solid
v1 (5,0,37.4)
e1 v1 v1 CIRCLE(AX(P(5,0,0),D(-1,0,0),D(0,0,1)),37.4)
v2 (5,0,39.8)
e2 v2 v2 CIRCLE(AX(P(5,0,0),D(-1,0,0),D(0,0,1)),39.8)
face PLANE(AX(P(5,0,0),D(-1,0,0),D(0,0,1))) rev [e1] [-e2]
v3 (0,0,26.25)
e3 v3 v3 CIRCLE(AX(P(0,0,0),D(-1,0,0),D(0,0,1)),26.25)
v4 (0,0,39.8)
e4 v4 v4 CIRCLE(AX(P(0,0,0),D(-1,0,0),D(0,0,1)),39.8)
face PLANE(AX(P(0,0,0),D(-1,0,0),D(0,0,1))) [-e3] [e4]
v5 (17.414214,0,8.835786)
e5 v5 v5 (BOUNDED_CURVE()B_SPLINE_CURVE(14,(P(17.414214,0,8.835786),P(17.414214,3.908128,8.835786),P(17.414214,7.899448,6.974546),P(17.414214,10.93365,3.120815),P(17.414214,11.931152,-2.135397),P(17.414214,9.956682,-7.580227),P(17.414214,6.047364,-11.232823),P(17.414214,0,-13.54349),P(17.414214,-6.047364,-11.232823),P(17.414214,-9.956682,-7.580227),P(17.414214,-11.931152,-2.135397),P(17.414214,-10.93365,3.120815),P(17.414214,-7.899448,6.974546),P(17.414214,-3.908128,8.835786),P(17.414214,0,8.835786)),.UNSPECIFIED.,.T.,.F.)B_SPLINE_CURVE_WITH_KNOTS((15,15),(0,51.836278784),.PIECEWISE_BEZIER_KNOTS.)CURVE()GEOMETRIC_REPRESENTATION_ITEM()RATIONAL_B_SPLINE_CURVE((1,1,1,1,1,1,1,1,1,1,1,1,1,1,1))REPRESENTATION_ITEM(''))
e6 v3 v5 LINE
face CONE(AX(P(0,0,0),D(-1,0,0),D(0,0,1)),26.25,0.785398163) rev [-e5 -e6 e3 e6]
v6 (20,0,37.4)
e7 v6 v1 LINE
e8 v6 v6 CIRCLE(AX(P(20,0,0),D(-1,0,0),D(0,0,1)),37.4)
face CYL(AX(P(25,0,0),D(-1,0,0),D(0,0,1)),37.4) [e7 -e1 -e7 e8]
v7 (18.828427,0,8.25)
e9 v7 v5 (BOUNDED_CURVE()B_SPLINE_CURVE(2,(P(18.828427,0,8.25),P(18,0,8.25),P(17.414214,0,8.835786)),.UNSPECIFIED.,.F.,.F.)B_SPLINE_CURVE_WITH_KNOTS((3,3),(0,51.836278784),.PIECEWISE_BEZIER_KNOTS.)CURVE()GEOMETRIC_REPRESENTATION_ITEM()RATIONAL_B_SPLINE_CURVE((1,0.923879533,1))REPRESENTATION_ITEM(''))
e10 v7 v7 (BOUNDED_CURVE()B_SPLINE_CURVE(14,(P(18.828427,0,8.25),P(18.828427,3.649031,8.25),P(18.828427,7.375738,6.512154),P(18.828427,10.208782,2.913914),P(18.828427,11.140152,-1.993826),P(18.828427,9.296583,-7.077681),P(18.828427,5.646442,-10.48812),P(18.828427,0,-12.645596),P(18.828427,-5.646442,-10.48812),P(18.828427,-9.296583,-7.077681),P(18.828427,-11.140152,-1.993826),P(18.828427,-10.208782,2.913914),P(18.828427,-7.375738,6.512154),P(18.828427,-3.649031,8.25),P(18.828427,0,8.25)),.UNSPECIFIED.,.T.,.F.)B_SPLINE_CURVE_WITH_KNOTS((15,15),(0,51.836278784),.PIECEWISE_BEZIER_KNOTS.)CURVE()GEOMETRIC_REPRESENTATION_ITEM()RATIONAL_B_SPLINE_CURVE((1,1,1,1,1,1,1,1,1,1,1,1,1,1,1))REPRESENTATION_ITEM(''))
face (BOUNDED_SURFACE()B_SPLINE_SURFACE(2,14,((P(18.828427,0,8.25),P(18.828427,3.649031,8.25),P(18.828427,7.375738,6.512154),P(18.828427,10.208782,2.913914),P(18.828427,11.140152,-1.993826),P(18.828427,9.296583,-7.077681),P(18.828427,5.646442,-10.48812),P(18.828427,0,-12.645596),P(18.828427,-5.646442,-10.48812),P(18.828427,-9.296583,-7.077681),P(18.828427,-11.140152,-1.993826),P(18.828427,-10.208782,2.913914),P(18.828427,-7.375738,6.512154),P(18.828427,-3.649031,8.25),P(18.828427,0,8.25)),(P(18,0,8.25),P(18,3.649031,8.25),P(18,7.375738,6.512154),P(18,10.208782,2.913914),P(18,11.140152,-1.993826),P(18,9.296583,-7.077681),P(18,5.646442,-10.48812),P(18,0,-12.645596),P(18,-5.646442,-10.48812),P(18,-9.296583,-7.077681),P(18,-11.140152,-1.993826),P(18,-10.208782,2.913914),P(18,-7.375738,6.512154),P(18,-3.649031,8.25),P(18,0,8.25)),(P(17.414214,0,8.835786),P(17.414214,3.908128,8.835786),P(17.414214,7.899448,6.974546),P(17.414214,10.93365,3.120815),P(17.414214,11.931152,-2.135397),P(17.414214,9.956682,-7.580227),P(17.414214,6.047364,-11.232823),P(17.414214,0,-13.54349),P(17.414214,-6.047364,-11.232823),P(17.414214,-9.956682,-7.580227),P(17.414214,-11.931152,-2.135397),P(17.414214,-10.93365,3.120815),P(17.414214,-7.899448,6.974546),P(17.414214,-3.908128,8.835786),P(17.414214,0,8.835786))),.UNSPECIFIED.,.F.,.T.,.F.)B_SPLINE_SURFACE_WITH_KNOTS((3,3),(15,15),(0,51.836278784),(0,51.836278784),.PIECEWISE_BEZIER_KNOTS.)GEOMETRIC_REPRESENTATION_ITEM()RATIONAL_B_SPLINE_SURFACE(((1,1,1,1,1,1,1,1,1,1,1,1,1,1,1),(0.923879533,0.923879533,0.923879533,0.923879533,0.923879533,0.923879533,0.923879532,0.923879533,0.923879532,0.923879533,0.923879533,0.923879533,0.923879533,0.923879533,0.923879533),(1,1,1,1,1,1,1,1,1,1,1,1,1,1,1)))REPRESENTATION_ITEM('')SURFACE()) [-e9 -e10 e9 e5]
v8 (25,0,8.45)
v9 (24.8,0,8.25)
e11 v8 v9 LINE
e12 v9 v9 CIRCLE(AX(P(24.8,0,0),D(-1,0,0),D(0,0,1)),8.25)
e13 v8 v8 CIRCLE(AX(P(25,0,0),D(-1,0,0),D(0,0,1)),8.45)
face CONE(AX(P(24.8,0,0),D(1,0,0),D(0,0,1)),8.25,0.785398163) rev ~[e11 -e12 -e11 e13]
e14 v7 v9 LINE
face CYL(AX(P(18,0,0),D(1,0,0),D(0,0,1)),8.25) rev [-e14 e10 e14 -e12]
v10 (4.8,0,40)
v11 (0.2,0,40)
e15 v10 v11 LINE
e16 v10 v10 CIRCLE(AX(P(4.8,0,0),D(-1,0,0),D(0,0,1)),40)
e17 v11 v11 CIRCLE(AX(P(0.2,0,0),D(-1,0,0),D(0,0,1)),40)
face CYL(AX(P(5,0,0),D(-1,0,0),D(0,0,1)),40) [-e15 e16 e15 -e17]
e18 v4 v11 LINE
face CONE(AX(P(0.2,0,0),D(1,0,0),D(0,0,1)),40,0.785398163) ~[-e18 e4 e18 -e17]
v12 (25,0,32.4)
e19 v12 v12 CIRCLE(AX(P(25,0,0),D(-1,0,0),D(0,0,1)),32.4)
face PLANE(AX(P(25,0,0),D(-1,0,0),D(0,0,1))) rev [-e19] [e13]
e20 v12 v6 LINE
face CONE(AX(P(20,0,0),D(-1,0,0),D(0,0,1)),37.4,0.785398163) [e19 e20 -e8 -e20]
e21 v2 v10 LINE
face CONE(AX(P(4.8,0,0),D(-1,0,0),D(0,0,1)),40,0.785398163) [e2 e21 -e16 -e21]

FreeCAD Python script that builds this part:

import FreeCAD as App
import Part
import Sketcher
Q = App.Units.Quantity


def edges_at(feature, points):
    """Names of the edges that pass closest to the given points."""
    edges = feature.Shape.Edges
    near = lambda p: min(range(len(edges)), key=lambda i: edges[i].distToShape(Part.Vertex(*p))[0])
    return sorted({f"Edge{near(p) + 1}" for p in points})


def add_polygon(sketch, points):
    """Adds a closed chain of lines whose ends are joined by coincident constraints."""
    first, n = sketch.GeometryCount, len(points)
    for a, b in zip(points, points[1:] + points[:1]):
        sketch.addGeometry(Part.LineSegment(App.Vector(*a, 0), App.Vector(*b, 0)), False)
    for i in range(n):
        sketch.addConstraint(Sketcher.Constraint("Coincident", first + i, 2, first + (i + 1) % n, 1))

doc = App.newDocument("Part")
body = doc.addObject("PartDesign::Body", "Body")

# Sketch on XZ plane
sketch1 = doc.addObject("Sketcher::SketchObject", "Sketch")
body.addObject(sketch1)
sketch1.AttachmentSupport = (doc.XZ_Plane, [""])
sketch1.MapMode = "FlatFace"
add_polygon(sketch1, [(0, 40), (0, 26.2), (18, 8.2), (25, 8.2), (25, 37.4), (5, 37.4), (5, 40)])  # lines 0-6
sketch1.addConstraint([
    Sketcher.Constraint("Vertical", 0),
    Sketcher.Constraint("Horizontal", 2),
    Sketcher.Constraint("Vertical", 3),
    Sketcher.Constraint("Horizontal", 4),
    Sketcher.Constraint("Vertical", 5),
    Sketcher.Constraint("Horizontal", 6),
    Sketcher.Constraint("PointOnObject", 0, 2, -2),
    Sketcher.Constraint("DistanceX", 2, 1, 2, 2, Q("7 mm")),
    Sketcher.Constraint("DistanceX", 4, 2, 4, 1, Q("20 mm")),
    Sketcher.Constraint("DistanceX", 6, 2, 6, 1, Q("5 mm")),
    Sketcher.Constraint("Angle", 1, Q("-45 deg")),
    Sketcher.Constraint("DistanceY", 5, 1, 5, 2, Q("2.6 mm")),
    Sketcher.Constraint("DistanceY", -1, 1, 5, 2, Q("40 mm")),
    Sketcher.Constraint("DistanceY", 0, 2, 0, 1, Q("13.75 mm")),
])
revolution = doc.addObject("PartDesign::Revolution", "Revolution")
body.addObject(revolution)
revolution.Profile = sketch1
revolution.ReferenceAxis = (sketch1, ["H_Axis"])
revolution.Angle = 360
doc.recompute()

chamfer = doc.addObject("PartDesign::Chamfer", "Chamfer")
body.addObject(chamfer)
chamfer.Base = (revolution, edges_at(revolution, [(25, 0, -37.4)]))
chamfer.Size = 5
doc.recompute()

chamfer2 = doc.addObject("PartDesign::Chamfer", "Chamfer001")
body.addObject(chamfer2)
chamfer2.Base = (chamfer, edges_at(chamfer, [(25, 0, -8.25), (5, 0, -40), (0, 0, -40)]))
chamfer2.Size = 0.2
doc.recompute()

fillet = doc.addObject("PartDesign::Fillet", "Fillet")
body.addObject(fillet)
fillet.Base = (chamfer2, edges_at(chamfer2, [(18, 0, -8.25)]))
fillet.Radius = 2

doc.recompute()
